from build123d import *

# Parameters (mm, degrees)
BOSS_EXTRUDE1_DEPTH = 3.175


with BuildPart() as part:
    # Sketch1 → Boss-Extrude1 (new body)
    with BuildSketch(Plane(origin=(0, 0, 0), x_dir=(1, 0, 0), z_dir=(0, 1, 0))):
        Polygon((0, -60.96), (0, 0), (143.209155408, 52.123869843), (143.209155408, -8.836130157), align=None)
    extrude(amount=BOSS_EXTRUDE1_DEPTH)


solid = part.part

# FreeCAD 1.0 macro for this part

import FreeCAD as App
import Part
import Sketcher
Q = App.Units.Quantity


def add_polygon(sketch, points):
    """Adds a closed chain of lines whose ends are joined by coincident constraints."""
    first, n = sketch.GeometryCount, len(points)
    for a, b in zip(points, points[1:] + points[:1]):
        sketch.addGeometry(Part.LineSegment(App.Vector(*a, 0), App.Vector(*b, 0)), False)
    for i in range(n):
        sketch.addConstraint(Sketcher.Constraint("Coincident", first + i, 2, first + (i + 1) % n, 1))

doc = App.newDocument("Part")
params = doc.addObject("Spreadsheet::Sheet", "Params")
for row, (alias, value) in enumerate([
    ("sketch1_length", "6 in"),
    ("sketch1_height", "2.4 in"),
    ("pad1_length", "0.125 in"),
], start=1):
    params.set(f"A{row}", alias)
    params.set(f"B{row}", "=" + value)
    params.setAlias(f"B{row}", alias)

body = doc.addObject("PartDesign::Body", "Body")

# Sketch on XZ plane
sketch1 = body.newObject("Sketcher::SketchObject", "Sketch")
sketch1.AttachmentSupport = (doc.getObject("XZ_Plane"), [""])
sketch1.MapMode = "FlatFace"
add_polygon(sketch1, [(0, 0), (0, 60.96), (143.209155, 8.83613), (143.209155, -52.12387)])  # lines 0-3
sketch1.addConstraint([
    Sketcher.Constraint("Vertical", 0),
    Sketcher.Constraint("Vertical", 2),
    Sketcher.Constraint("Coincident", 3, 2, -1, 1),
    Sketcher.Constraint("Parallel", 1, 3),
    Sketcher.Constraint("Distance", 1, Q("6 in")),
    Sketcher.Constraint("DistanceY", 0, 1, 0, 2, Q("2.4 in")),
    Sketcher.Constraint("Angle", 1, Q("-20 deg")),
])
sketch1.setExpression("Constraints[8]", "Params.sketch1_length")
sketch1.setExpression("Constraints[9]", "Params.sketch1_height")
pad1 = body.newObject("PartDesign::Pad", "Pad")
pad1.Profile = sketch1
pad1.setExpression("Length", "Params.pad1_length")
pad1.Reversed = True

doc.recompute()
